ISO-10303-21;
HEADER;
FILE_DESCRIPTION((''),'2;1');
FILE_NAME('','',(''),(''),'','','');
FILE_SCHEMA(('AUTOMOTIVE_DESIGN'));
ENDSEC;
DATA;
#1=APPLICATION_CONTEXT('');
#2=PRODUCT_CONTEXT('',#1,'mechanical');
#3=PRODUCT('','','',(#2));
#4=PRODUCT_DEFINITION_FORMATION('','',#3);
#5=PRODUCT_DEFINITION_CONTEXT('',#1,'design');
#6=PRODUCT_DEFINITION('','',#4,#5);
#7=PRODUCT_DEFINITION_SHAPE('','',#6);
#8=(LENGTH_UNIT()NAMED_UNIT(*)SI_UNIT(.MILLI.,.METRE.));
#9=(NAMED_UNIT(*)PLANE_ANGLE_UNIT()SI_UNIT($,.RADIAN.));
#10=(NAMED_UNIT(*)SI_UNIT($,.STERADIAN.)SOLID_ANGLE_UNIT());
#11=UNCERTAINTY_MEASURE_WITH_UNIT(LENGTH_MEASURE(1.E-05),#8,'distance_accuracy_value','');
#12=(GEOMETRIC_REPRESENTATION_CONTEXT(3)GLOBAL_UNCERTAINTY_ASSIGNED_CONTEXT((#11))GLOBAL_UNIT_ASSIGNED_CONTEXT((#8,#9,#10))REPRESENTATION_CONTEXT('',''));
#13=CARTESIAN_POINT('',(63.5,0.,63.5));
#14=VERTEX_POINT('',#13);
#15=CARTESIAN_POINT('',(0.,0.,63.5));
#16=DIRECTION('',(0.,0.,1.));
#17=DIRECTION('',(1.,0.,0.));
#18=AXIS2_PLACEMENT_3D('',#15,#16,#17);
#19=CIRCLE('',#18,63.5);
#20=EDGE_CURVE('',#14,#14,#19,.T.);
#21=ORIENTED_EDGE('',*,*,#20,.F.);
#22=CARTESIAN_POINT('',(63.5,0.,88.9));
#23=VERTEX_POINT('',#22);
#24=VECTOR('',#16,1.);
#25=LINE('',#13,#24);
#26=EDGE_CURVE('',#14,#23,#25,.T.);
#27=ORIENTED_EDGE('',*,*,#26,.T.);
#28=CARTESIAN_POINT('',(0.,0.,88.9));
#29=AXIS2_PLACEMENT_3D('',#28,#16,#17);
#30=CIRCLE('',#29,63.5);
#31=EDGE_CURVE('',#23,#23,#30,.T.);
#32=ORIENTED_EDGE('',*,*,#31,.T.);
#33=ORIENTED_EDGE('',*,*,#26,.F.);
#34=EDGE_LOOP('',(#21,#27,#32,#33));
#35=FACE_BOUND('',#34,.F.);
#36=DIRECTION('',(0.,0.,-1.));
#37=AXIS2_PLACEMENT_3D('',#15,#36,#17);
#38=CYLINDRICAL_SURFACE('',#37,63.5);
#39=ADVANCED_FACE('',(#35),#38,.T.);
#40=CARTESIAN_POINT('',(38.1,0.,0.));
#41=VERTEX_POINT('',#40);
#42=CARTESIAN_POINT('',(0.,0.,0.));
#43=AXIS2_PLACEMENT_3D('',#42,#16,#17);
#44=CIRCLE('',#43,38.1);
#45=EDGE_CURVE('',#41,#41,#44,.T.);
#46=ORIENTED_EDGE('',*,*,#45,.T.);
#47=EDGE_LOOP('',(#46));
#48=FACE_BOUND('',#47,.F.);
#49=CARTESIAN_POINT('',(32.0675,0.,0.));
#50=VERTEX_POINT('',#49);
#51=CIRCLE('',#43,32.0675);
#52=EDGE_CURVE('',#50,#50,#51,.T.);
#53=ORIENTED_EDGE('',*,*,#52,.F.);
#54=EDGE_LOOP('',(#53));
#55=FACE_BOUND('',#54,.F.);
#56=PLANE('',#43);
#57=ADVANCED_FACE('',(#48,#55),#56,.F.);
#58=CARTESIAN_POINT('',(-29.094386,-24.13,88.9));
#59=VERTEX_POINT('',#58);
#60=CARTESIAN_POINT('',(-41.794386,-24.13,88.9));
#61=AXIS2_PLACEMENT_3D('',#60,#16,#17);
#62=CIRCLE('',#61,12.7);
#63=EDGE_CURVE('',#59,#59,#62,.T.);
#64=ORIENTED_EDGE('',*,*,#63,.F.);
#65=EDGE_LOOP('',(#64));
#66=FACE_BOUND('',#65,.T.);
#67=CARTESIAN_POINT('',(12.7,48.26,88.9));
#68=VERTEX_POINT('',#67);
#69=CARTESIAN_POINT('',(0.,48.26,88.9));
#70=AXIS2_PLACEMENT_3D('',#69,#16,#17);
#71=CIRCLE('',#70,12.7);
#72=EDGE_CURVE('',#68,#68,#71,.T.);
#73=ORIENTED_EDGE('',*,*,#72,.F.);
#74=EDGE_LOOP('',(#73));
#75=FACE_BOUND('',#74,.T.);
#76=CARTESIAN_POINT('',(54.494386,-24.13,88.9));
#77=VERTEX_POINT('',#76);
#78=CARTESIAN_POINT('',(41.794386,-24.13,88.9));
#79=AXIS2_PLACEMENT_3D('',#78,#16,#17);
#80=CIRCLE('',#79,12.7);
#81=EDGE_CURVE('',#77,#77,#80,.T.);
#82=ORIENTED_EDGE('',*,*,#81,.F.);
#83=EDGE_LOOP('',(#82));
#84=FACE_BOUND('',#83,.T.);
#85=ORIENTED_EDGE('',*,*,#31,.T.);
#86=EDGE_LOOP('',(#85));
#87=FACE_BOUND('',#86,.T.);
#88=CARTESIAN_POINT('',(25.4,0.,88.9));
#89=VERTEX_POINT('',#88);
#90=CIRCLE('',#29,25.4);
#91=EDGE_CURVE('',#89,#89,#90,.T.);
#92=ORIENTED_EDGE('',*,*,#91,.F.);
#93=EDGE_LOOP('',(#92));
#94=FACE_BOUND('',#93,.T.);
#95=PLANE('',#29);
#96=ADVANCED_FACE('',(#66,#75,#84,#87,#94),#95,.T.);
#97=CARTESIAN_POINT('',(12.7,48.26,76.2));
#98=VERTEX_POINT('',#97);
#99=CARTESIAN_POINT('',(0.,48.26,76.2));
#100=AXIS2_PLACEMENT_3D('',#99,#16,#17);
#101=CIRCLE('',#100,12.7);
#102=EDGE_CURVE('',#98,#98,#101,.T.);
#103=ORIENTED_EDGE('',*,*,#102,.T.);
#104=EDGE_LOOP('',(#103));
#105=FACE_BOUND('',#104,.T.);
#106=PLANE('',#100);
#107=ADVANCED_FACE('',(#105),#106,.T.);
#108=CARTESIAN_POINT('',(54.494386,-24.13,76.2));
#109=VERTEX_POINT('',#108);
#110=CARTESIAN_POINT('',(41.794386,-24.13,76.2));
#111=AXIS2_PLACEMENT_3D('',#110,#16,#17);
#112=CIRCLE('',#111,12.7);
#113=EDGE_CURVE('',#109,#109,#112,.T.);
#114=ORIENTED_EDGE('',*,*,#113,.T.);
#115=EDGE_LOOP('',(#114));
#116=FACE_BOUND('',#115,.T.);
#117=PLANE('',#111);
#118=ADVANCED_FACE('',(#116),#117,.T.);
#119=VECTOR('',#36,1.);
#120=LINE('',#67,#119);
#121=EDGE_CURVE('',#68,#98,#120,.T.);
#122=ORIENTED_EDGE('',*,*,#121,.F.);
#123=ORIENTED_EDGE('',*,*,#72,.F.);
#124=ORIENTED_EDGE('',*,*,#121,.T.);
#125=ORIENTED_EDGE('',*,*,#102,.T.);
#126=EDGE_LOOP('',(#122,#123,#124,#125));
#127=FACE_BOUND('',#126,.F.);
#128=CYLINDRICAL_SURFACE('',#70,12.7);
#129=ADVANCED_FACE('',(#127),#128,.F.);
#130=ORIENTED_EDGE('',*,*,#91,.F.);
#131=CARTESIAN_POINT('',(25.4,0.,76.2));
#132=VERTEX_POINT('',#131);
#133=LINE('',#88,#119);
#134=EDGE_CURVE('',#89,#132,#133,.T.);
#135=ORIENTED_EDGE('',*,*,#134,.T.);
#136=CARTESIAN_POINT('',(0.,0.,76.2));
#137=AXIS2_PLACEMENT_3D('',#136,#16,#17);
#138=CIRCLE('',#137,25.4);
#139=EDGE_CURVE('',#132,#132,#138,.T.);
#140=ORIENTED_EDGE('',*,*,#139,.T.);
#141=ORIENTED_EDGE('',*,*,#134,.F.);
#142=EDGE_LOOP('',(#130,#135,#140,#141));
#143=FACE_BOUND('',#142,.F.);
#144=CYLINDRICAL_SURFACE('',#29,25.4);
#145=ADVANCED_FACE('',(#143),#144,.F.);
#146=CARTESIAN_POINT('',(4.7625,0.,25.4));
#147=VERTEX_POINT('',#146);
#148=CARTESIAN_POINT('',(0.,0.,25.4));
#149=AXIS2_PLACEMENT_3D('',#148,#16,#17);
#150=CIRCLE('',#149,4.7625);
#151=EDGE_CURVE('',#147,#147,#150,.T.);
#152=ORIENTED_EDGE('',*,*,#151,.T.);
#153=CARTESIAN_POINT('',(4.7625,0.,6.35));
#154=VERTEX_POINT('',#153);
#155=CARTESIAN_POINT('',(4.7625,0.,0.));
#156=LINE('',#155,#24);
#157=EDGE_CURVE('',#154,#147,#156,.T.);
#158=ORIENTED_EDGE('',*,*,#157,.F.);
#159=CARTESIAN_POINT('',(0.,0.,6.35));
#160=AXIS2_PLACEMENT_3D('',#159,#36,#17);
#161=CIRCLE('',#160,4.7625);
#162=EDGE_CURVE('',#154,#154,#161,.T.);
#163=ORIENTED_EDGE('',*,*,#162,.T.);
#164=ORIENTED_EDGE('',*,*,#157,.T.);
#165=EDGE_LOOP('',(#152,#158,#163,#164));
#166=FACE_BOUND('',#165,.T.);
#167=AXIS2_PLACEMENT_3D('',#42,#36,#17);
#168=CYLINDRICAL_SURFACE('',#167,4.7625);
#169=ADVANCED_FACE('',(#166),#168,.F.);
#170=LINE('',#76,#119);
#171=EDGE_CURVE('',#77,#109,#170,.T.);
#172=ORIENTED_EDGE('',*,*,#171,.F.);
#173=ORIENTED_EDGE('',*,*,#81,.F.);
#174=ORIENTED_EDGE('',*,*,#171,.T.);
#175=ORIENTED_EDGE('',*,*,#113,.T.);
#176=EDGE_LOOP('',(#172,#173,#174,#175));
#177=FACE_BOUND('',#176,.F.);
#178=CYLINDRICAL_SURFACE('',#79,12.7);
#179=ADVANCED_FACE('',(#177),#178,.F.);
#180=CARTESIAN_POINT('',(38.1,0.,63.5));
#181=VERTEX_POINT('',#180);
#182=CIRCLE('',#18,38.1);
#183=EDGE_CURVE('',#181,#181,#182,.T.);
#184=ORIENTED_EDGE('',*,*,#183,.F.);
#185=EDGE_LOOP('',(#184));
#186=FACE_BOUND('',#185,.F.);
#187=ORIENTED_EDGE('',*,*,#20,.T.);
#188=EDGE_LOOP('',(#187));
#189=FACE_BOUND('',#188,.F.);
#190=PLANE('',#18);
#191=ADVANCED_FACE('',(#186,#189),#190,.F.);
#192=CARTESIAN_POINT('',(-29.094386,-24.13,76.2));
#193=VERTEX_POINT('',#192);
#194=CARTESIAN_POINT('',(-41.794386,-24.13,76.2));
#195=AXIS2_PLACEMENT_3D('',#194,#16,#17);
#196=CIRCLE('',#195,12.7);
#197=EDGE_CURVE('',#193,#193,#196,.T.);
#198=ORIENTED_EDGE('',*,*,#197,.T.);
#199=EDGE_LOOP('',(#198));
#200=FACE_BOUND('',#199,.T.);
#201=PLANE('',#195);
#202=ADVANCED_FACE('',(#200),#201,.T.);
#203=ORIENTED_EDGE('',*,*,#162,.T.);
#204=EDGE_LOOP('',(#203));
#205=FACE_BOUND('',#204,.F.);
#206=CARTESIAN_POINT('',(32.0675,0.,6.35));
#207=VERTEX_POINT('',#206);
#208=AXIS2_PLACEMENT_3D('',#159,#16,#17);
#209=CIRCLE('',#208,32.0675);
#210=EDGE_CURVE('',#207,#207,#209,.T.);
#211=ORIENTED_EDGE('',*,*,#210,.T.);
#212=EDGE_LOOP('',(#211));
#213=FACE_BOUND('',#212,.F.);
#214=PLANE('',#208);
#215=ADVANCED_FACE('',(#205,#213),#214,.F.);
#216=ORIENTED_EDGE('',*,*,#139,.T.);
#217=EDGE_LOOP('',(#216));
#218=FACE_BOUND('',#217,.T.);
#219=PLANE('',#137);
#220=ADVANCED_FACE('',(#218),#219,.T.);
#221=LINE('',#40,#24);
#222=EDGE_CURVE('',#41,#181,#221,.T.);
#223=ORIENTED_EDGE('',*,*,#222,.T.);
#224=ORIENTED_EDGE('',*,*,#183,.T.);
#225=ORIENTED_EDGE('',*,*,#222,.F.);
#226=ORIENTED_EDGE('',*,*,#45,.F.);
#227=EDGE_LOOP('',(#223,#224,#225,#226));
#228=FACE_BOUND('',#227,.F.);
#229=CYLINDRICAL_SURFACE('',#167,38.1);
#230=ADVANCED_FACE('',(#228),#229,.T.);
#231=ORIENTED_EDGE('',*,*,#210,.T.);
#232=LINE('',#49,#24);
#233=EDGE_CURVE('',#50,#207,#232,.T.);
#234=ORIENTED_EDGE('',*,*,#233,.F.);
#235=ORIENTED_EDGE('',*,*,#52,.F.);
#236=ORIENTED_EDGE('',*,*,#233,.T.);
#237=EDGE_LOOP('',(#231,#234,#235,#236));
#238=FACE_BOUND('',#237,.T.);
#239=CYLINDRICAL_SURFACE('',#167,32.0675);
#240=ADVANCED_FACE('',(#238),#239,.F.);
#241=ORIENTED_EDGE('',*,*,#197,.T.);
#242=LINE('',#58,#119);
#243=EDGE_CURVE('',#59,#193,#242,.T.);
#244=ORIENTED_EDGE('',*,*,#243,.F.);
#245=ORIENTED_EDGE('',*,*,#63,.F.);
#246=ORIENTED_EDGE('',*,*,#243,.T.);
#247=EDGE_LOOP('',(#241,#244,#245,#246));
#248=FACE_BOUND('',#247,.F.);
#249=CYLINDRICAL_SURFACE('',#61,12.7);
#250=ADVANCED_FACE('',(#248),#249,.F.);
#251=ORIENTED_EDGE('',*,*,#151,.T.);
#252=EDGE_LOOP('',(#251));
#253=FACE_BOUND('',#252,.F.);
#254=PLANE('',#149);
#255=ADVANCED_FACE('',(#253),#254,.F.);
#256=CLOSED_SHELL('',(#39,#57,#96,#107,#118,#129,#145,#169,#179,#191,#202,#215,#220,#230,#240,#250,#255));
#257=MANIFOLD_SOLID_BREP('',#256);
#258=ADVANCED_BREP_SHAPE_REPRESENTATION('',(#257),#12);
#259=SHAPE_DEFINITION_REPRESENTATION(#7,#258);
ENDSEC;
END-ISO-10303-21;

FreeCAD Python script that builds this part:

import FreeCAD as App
import Part
import Sketcher
from FreeCAD import Vector
Q = App.Units.Quantity

doc = App.newDocument("Part")
params = doc.addObject("Spreadsheet::Sheet", "Params")
for row, (alias, value) in enumerate([
    ("sketch1_diameter", "3 in"),
    ("pad1_length", "2.5 in"),
    ("sketch2_diameter", "2.525 in"),
    ("pocket1_length", "0.25 in"),
    ("sketch3_diameter", "0.375 in"),
    ("pocket2_length", "1 in"),
    ("sketch4_diameter", "5 in"),
    ("pad2_length", "1 in"),
    ("sketch5_diameter", "1 in"),
    ("sketch5_diameter2", "2 in"),
    ("pocket3_length", "0.5 in"),
], start=1):
    params.set(f"A{row}", alias)
    params.set(f"B{row}", "=" + value)
    params.setAlias(f"B{row}", alias)

body = doc.addObject("PartDesign::Body", "Body")

# Sketch on XY plane
sketch1 = body.newObject("Sketcher::SketchObject", "Sketch")
sketch1.AttachmentSupport = (doc.getObject("XY_Plane"), [""])
sketch1.MapMode = "FlatFace"
sketch1.addGeometry(Part.Circle(Vector(0, 0, 0), Vector(0, 0, 1), 38), False)
sketch1.addConstraint([
    Sketcher.Constraint("Coincident", 0, 3, -1, 1),
    Sketcher.Constraint("Diameter", 0, Q("3 in")),
])
sketch1.setExpression("Constraints[1]", "Params.sketch1_diameter")
pad1 = body.newObject("PartDesign::Pad", "Pad")
pad1.Profile = sketch1
pad1.setExpression("Length", "Params.pad1_length")

# Sketch on XY plane
sketch2 = body.newObject("Sketcher::SketchObject", "Sketch001")
sketch2.AttachmentSupport = (doc.getObject("XY_Plane"), [""])
sketch2.MapMode = "FlatFace"
sketch2.addGeometry(Part.Circle(Vector(0, 0, 0), Vector(0, 0, 1), 32), False)
sketch2.addConstraint([
    Sketcher.Constraint("Coincident", 0, 3, -1, 1),
    Sketcher.Constraint("Diameter", 0, Q("2.525 in")),
])
sketch2.setExpression("Constraints[1]", "Params.sketch2_diameter")
pocket1 = body.newObject("PartDesign::Pocket", "Pocket")
pocket1.Profile = sketch2
pocket1.setExpression("Length", "Params.pocket1_length")
pocket1.Reversed = True

# Sketch on XY plane
sketch3 = body.newObject("Sketcher::SketchObject", "Sketch002")
sketch3.AttachmentSupport = (doc.getObject("XY_Plane"), [""])
sketch3.MapMode = "FlatFace"
sketch3.addGeometry(Part.Circle(Vector(0, 0, 0), Vector(0, 0, 1), 4.8), False)
sketch3.addConstraint([
    Sketcher.Constraint("Coincident", 0, 3, -1, 1),
    Sketcher.Constraint("Diameter", 0, Q("0.375 in")),
])
sketch3.setExpression("Constraints[1]", "Params.sketch3_diameter")
pocket2 = body.newObject("PartDesign::Pocket", "Pocket001")
pocket2.Profile = sketch3
pocket2.setExpression("Length", "Params.pocket2_length")
pocket2.Reversed = True

# Sketch on XY plane
sketch4 = body.newObject("Sketcher::SketchObject", "Sketch003")
sketch4.AttachmentSupport = (doc.getObject("XY_Plane"), [""])
sketch4.MapMode = "FlatFace"
sketch4.AttachmentOffset = App.Placement(Vector(0, 0, 2.5 * 25.4), App.Rotation())
sketch4.addGeometry(Part.Circle(Vector(0, 0, 0), Vector(0, 0, 1), 64), False)
sketch4.addConstraint([
    Sketcher.Constraint("Coincident", 0, 3, -1, 1),
    Sketcher.Constraint("Diameter", 0, Q("5 in")),
])
sketch4.setExpression("Constraints[1]", "Params.sketch4_diameter")
pad2 = body.newObject("PartDesign::Pad", "Pad001")
pad2.Profile = sketch4
pad2.setExpression("Length", "Params.pad2_length")

# Sketch on XY plane
sketch5 = body.newObject("Sketcher::SketchObject", "Sketch004")
sketch5.AttachmentSupport = (doc.getObject("XY_Plane"), [""])
sketch5.MapMode = "FlatFace"
sketch5.AttachmentOffset = App.Placement(Vector(0, 0, 3.5 * 25.4), App.Rotation())
sketch5.addGeometry([
    Part.Circle(Vector(0, 48, 0), Vector(0, 0, 1), 13),
    Part.Circle(Vector(-42, -24, 0), Vector(0, 0, 1), 13),
    Part.Circle(Vector(42, -24, 0), Vector(0, 0, 1), 13),
    Part.Circle(Vector(0, 0, 0), Vector(0, 0, 1), 25),
], False)
sketch5.addConstraint([
    Sketcher.Constraint("Coincident", 3, 3, -1, 1),
    Sketcher.Constraint("Equal", 0, 1),
    Sketcher.Constraint("Equal", 1, 2),
    Sketcher.Constraint("Symmetric", 1, 3, 2, 3, -2),
    Sketcher.Constraint("PointOnObject", 0, 3, -2),
    Sketcher.Constraint("Diameter", 0, Q("1 in")),
    Sketcher.Constraint("Diameter", 3, Q("2 in")),
    Sketcher.Constraint("DistanceY", -1, 1, 0, 3, Q("1.9 in")),
    Sketcher.Constraint("DistanceY", 1, 3, -1, 1, Q("0.95 in")),
    Sketcher.Constraint("DistanceX", 1, 3, -1, 1, 41.794386),
])
sketch5.setExpression("Constraints[5]", "Params.sketch5_diameter")
sketch5.setExpression("Constraints[6]", "Params.sketch5_diameter2")
pocket3 = body.newObject("PartDesign::Pocket", "Pocket002")
pocket3.Profile = sketch5
pocket3.setExpression("Length", "Params.pocket3_length")

doc.recompute()
